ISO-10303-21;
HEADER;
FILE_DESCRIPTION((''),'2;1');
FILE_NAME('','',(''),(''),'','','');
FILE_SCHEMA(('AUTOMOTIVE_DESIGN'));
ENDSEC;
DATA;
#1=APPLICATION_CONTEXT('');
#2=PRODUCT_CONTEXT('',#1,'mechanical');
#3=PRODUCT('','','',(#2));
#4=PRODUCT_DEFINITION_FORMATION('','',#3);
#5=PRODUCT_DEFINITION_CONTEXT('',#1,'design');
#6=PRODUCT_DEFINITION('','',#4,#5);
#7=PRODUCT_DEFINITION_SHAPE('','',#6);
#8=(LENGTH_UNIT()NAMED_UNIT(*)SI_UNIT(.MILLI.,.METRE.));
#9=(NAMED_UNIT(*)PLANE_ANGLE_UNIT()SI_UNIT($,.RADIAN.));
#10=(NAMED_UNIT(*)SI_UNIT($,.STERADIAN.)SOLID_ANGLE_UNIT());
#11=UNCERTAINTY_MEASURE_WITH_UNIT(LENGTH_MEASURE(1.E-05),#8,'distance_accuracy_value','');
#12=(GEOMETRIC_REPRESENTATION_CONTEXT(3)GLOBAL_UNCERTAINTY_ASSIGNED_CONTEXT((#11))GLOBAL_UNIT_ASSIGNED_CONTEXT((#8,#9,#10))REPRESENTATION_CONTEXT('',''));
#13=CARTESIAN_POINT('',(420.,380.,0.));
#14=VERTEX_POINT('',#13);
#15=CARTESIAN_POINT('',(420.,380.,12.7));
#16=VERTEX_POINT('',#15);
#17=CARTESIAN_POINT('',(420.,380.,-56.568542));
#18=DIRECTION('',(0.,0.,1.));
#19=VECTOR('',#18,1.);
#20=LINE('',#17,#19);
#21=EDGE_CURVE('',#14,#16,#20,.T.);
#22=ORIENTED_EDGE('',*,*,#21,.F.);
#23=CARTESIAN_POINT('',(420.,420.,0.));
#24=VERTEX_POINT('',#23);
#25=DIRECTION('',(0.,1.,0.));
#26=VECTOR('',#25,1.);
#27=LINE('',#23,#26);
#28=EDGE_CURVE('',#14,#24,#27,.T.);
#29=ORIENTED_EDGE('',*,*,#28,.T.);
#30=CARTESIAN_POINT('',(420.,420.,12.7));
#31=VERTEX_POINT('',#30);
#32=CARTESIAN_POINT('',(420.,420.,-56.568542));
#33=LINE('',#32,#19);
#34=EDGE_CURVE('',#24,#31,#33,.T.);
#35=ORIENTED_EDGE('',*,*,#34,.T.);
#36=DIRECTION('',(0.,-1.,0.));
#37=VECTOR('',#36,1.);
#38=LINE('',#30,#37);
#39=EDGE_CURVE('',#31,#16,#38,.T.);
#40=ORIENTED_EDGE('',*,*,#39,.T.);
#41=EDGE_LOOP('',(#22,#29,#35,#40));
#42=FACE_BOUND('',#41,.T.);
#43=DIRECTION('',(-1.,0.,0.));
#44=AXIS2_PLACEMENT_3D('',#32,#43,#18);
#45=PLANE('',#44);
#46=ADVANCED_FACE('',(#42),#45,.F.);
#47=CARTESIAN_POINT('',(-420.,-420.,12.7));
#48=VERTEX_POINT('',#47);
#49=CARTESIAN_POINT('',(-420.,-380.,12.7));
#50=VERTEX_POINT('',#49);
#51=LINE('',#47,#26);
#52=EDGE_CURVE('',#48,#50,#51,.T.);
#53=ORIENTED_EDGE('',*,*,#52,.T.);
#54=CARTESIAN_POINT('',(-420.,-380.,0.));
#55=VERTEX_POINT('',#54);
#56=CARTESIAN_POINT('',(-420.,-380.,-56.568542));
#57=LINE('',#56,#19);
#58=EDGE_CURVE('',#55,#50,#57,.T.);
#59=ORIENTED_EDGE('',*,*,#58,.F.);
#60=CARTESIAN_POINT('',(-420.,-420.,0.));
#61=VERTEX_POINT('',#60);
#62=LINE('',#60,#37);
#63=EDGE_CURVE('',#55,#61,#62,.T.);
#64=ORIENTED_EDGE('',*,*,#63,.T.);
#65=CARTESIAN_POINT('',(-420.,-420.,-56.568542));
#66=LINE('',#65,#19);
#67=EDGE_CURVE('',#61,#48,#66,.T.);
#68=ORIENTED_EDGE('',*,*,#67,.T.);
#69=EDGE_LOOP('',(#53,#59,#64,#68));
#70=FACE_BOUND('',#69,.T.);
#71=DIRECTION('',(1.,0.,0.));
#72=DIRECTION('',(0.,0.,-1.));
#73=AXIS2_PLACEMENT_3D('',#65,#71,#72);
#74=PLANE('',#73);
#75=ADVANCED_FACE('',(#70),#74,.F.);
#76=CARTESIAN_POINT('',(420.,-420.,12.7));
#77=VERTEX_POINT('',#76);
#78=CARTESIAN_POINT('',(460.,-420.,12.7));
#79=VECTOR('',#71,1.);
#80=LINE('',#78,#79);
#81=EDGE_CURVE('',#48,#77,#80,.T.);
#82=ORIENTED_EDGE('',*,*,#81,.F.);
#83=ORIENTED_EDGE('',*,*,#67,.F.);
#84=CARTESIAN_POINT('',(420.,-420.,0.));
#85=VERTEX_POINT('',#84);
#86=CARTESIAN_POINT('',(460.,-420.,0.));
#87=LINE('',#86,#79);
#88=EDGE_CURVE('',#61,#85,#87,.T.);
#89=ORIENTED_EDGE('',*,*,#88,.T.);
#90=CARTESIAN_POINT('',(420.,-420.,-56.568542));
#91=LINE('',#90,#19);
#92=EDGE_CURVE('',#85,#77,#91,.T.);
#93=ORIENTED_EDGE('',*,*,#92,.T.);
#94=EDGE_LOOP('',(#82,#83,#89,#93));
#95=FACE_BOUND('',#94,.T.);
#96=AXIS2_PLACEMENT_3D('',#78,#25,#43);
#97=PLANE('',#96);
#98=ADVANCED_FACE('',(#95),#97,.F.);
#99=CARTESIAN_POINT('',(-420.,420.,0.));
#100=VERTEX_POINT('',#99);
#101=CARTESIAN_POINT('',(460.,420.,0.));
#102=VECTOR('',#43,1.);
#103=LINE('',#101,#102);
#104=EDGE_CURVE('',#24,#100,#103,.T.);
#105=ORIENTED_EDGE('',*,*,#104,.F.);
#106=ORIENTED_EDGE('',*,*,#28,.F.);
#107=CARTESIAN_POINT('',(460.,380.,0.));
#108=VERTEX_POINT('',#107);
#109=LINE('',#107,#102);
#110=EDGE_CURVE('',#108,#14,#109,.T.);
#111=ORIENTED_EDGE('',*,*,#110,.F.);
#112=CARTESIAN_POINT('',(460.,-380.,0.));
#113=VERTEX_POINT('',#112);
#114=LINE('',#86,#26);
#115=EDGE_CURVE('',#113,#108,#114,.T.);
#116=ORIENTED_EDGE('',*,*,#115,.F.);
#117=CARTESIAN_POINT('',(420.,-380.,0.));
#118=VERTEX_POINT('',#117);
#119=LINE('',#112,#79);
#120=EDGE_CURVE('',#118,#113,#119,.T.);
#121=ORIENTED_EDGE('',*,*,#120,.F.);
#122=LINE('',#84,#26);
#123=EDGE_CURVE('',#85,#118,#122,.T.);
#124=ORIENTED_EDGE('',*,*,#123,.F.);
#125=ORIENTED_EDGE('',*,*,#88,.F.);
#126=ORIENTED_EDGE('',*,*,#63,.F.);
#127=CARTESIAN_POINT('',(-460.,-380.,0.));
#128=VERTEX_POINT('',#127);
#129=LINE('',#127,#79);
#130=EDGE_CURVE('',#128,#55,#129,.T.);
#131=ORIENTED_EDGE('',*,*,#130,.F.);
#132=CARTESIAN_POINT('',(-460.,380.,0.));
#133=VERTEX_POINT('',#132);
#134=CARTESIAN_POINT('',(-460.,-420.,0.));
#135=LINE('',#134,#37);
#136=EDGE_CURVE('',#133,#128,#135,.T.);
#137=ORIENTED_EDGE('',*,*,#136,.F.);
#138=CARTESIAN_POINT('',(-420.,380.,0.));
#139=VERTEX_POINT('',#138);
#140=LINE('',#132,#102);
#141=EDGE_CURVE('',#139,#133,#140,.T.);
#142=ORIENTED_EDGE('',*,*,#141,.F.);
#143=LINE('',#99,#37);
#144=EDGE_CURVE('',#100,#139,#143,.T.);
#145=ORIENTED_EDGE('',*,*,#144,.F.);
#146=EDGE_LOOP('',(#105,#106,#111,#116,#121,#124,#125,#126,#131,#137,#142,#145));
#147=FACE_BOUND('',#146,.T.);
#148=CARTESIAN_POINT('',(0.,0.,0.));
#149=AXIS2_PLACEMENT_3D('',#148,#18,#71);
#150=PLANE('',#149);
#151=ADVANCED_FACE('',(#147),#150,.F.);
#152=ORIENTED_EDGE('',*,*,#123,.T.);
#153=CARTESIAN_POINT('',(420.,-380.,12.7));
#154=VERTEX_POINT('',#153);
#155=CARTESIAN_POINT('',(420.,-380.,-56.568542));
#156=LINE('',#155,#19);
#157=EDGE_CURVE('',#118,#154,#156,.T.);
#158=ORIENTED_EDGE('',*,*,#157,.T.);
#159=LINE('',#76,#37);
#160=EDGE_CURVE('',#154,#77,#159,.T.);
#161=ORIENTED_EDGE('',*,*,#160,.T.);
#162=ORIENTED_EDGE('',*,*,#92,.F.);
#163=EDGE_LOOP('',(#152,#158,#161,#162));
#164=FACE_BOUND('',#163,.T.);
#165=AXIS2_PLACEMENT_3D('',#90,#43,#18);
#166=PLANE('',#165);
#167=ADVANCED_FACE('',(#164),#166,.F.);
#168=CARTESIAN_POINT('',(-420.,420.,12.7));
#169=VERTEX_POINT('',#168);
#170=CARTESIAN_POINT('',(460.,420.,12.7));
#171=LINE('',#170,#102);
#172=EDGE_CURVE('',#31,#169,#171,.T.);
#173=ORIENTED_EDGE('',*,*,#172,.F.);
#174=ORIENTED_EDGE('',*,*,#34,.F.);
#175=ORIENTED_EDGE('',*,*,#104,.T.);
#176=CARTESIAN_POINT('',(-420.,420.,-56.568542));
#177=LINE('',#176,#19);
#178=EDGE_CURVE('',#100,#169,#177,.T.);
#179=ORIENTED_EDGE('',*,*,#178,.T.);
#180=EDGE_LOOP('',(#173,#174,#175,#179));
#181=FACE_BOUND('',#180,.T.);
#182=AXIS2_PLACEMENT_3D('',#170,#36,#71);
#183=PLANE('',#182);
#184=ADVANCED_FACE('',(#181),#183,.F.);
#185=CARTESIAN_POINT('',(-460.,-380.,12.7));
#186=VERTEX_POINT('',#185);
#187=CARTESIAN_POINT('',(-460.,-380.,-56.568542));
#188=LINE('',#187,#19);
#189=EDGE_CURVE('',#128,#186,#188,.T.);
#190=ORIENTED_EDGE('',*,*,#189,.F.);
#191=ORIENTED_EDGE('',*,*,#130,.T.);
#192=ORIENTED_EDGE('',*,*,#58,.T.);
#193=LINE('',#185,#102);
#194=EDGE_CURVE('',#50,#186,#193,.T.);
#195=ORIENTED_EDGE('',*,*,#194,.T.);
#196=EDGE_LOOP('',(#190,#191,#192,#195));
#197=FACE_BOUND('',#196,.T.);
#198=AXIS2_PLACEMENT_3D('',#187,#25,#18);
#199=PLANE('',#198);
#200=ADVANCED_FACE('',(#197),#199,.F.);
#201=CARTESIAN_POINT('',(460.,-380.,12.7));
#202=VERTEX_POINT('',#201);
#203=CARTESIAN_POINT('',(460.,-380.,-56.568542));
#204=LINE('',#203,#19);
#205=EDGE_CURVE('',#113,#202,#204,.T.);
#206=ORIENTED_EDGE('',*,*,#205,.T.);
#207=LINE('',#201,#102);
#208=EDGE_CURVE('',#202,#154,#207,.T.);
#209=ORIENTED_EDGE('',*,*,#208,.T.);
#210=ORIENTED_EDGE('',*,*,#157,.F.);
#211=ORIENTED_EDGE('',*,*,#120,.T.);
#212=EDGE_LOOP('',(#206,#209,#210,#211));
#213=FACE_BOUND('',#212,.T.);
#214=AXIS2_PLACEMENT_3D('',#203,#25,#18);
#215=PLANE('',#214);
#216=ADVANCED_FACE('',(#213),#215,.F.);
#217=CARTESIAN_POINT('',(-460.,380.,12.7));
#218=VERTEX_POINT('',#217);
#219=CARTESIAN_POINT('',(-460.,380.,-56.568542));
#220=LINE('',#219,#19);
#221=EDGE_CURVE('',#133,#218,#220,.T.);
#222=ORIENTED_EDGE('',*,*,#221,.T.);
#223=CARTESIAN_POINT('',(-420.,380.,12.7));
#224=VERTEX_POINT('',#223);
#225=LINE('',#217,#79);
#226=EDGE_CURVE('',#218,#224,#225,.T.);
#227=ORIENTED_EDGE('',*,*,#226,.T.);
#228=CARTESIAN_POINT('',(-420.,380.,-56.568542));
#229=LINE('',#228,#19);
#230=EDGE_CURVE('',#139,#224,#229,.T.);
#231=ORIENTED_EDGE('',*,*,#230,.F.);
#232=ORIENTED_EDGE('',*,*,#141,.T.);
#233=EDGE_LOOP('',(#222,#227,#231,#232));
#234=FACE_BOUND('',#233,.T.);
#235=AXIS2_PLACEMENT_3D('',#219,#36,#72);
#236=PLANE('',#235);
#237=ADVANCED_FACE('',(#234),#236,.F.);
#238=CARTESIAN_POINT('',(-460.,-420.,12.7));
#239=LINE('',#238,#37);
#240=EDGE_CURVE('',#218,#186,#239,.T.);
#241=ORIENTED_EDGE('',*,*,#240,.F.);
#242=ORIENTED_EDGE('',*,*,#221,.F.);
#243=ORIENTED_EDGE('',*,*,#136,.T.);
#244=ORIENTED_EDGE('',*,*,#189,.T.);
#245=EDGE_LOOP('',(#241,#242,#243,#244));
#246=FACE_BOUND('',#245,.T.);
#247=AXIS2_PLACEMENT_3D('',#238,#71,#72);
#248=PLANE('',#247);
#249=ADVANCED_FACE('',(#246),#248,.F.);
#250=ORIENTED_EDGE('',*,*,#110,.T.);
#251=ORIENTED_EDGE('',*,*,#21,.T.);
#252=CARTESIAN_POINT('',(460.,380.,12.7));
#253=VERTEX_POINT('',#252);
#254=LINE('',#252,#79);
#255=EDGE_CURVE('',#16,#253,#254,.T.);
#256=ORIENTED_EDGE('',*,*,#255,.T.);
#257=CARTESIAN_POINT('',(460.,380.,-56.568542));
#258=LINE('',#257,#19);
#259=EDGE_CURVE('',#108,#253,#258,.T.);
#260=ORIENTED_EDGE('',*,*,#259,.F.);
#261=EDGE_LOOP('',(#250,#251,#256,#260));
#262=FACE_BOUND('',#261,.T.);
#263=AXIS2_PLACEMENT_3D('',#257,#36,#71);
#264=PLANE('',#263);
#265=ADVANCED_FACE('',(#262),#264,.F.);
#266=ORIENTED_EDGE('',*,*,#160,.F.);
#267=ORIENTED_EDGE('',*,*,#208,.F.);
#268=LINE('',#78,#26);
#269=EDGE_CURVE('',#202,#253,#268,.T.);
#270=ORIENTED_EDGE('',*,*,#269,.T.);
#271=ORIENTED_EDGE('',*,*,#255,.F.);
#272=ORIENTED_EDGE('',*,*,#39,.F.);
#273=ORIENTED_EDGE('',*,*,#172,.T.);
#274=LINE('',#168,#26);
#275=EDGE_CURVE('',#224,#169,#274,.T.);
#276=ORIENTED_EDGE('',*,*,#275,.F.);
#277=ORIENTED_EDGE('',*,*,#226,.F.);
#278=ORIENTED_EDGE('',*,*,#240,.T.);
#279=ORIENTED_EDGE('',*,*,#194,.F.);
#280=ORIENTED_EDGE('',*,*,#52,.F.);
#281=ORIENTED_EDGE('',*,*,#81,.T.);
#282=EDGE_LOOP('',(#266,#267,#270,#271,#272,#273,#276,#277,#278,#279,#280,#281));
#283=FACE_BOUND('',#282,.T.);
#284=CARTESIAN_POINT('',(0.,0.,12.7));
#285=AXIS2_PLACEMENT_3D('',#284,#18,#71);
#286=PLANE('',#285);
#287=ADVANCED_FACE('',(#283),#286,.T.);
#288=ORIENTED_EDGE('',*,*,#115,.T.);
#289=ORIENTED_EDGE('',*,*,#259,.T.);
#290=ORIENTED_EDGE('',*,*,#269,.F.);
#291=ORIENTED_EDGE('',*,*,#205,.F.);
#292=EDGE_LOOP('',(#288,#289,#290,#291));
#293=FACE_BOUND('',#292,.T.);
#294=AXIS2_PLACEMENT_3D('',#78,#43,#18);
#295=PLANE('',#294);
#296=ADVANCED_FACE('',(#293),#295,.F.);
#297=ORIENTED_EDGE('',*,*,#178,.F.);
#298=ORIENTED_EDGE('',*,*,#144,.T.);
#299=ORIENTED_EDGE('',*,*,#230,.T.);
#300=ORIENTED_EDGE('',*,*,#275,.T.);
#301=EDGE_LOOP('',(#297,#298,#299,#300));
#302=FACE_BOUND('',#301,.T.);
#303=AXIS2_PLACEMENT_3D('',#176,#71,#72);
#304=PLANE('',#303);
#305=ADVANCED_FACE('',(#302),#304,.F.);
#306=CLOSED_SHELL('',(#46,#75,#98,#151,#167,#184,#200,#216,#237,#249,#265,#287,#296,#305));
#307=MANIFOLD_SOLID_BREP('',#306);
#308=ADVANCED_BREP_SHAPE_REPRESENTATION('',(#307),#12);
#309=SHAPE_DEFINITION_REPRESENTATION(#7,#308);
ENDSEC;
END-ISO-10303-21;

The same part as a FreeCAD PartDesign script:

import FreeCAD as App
import Part
import Sketcher
from FreeCAD import Vector
Q = App.Units.Quantity


def add_polygon(sketch, points):
    """Adds a closed chain of lines whose ends are joined by coincident constraints."""
    first, n = sketch.GeometryCount, len(points)
    for a, b in zip(points, points[1:] + points[:1]):
        sketch.addGeometry(Part.LineSegment(App.Vector(*a, 0), App.Vector(*b, 0)), False)
    for i in range(n):
        sketch.addConstraint(Sketcher.Constraint("Coincident", first + i, 2, first + (i + 1) % n, 1))

doc = App.newDocument("Part")
body = doc.addObject("PartDesign::Body", "Body")

# Sketch on XY plane
sketch1 = doc.addObject("Sketcher::SketchObject", "Sketch")
body.addObject(sketch1)
sketch1.AttachmentSupport = (doc.XY_Plane, [""])
sketch1.MapMode = "FlatFace"
add_polygon(sketch1, [(-460, 420), (-460, -420), (460, -420), (460, 420)])  # lines 0-3
sketch1.addConstraint([
    Sketcher.Constraint("Vertical", 0),
    Sketcher.Constraint("Horizontal", 1),
    Sketcher.Constraint("Vertical", 2),
    Sketcher.Constraint("Horizontal", 3),
    Sketcher.Constraint("Symmetric", 0, 2, 2, 2, -1, 1),
    Sketcher.Constraint("DistanceX", 1, 1, 1, 2, Q("920 mm")),
    Sketcher.Constraint("DistanceY", 0, 2, 0, 1, Q("840 mm")),
])
pad1 = doc.addObject("PartDesign::Pad", "Pad")
body.addObject(pad1)
pad1.Profile = sketch1
pad1.Length = 12.7

# Sketch on XY plane
sketch2 = doc.addObject("Sketcher::SketchObject", "Sketch001")
body.addObject(sketch2)
sketch2.AttachmentSupport = (doc.XY_Plane, [""])
sketch2.MapMode = "FlatFace"
sketch2.AttachmentOffset = App.Placement(Vector(0, 0, 12.7), App.Rotation())
add_polygon(sketch2, [(-460, 420), (-460, 380), (-420, 380), (-420, 420)])  # lines 0-3
add_polygon(sketch2, [(420, -380), (420, -420), (460, -420), (460, -380)])  # lines 4-7
add_polygon(sketch2, [(420, 420), (420, 380), (460, 380), (460, 420)])  # lines 8-11
add_polygon(sketch2, [(-460, -380), (-460, -420), (-420, -420), (-420, -380)])  # lines 12-15
sketch2.addConstraint([
    Sketcher.Constraint("Vertical", 0),
    Sketcher.Constraint("Horizontal", 1),
    Sketcher.Constraint("Vertical", 2),
    Sketcher.Constraint("Horizontal", 3),
    Sketcher.Constraint("Vertical", 4),
    Sketcher.Constraint("Horizontal", 5),
    Sketcher.Constraint("Vertical", 6),
    Sketcher.Constraint("Horizontal", 7),
    Sketcher.Constraint("Vertical", 8),
    Sketcher.Constraint("Horizontal", 9),
    Sketcher.Constraint("Vertical", 10),
    Sketcher.Constraint("Horizontal", 11),
    Sketcher.Constraint("Vertical", 12),
    Sketcher.Constraint("Horizontal", 13),
    Sketcher.Constraint("Vertical", 14),
    Sketcher.Constraint("Horizontal", 15),
    Sketcher.Constraint("Symmetric", 2, 2, 4, 2, -1, 1),
    Sketcher.Constraint("Symmetric", 0, 2, 6, 2, -1, 1),
    Sketcher.Constraint("Symmetric", 10, 2, 12, 2, -1, 1),
    Sketcher.Constraint("Symmetric", 8, 2, 14, 2, -1, 1),
    Sketcher.Constraint("Symmetric", 1, 2, 8, 2, -2),
    Sketcher.Constraint("Symmetric", 3, 2, 10, 2, -2),
    Sketcher.Constraint("Equal", 15, 0),
    Sketcher.Constraint("DistanceX", 1, 1, 1, 2, Q("40 mm")),
    Sketcher.Constraint("DistanceX", 0, 2, -1, 1, Q("460 mm")),
    Sketcher.Constraint("DistanceY", -1, 1, 0, 2, Q("380 mm")),
])
pocket1 = doc.addObject("PartDesign::Pocket", "Pocket")
body.addObject(pocket1)
pocket1.Profile = sketch2
pocket1.Length = 12.7

doc.recompute()
